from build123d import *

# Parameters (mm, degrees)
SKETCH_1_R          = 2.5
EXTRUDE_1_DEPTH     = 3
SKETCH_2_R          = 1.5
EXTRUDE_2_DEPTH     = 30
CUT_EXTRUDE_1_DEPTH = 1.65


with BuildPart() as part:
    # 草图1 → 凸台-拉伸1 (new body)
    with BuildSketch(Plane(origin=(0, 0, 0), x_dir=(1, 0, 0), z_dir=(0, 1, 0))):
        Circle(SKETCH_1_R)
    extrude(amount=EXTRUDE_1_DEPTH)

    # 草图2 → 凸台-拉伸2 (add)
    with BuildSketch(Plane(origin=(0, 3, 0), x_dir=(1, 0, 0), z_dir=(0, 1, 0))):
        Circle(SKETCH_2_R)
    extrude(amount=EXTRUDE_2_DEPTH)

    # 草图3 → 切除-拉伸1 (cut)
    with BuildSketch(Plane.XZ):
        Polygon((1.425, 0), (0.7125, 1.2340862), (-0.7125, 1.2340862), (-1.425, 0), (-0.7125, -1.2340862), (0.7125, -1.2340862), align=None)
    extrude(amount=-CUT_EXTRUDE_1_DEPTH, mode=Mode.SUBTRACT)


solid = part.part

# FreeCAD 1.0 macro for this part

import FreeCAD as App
import Part
import Sketcher
Q = App.Units.Quantity


def add_polygon(sketch, points):
    """Adds a closed chain of lines whose ends are joined by coincident constraints."""
    first, n = sketch.GeometryCount, len(points)
    for a, b in zip(points, points[1:] + points[:1]):
        sketch.addGeometry(Part.LineSegment(App.Vector(*a, 0), App.Vector(*b, 0)), False)
    for i in range(n):
        sketch.addConstraint(Sketcher.Constraint("Coincident", first + i, 2, first + (i + 1) % n, 1))

doc = App.newDocument("Part")
body = doc.addObject("PartDesign::Body", "Body")

# Sketch on XZ plane
sketch1 = body.newObject("Sketcher::SketchObject", "Sketch")
sketch1.AttachmentSupport = (doc.getObject("XZ_Plane"), [""])
sketch1.MapMode = "FlatFace"
sketch1.addGeometry(Part.Circle(App.Vector(0, 0, 0), App.Vector(0, 0, 1), 2.5), False)
sketch1.addConstraint([
    Sketcher.Constraint("Coincident", 0, 3, -1, 1),
    Sketcher.Constraint("Diameter", 0, 5.0),
])
pad1 = body.newObject("PartDesign::Pad", "Pad")
pad1.Profile = sketch1
pad1.Length = 3
pad1.Reversed = True

# Sketch on XZ plane
sketch2 = body.newObject("Sketcher::SketchObject", "Sketch001")
sketch2.AttachmentSupport = (doc.getObject("XZ_Plane"), [""])
sketch2.MapMode = "FlatFace"
sketch2.AttachmentOffset = App.Placement(App.Vector(0, 0, -3), App.Rotation())
sketch2.addGeometry(Part.Circle(App.Vector(0, 0, 0), App.Vector(0, 0, 1), 1.5), False)
sketch2.addConstraint([
    Sketcher.Constraint("Coincident", 0, 3, -1, 1),
    Sketcher.Constraint("Diameter", 0, 3.0),
])
pad2 = body.newObject("PartDesign::Pad", "Pad001")
pad2.Profile = sketch2
pad2.Length = 30
pad2.Reversed = True

# Sketch on XZ plane
sketch3 = body.newObject("Sketcher::SketchObject", "Sketch002")
sketch3.AttachmentSupport = (doc.getObject("XZ_Plane"), [""])
sketch3.MapMode = "FlatFace"
add_polygon(sketch3, [(1.4, 0), (0.7, 1.2), (-0.7, 1.2), (-1.4, 0), (-0.7, -1.2), (0.7, -1.2)])  # lines 0-5
sketch3.addConstraint([
    Sketcher.Constraint("Horizontal", 1),
    Sketcher.Constraint("Horizontal", 4),
    Sketcher.Constraint("Symmetric", 0, 2, 3, 2, -1, 1),
    Sketcher.Constraint("Symmetric", 2, 2, 5, 2, -1, 1),
    Sketcher.Constraint("PointOnObject", 2, 2, -1),
    Sketcher.Constraint("Parallel", 2, 5),
    Sketcher.Constraint("Vertical", 1, 2, 3, 2),
    Sketcher.Constraint("Angle", 0, Q("120 deg")),
    Sketcher.Constraint("DistanceX", 1, 2, 1, 1, 1.425),
    Sketcher.Constraint("DistanceX", 2, 2, 5, 2, 2.85),
])
pocket1 = body.newObject("PartDesign::Pocket", "Pocket")
pocket1.Profile = sketch3
pocket1.Length = 1.65

doc.recompute()
